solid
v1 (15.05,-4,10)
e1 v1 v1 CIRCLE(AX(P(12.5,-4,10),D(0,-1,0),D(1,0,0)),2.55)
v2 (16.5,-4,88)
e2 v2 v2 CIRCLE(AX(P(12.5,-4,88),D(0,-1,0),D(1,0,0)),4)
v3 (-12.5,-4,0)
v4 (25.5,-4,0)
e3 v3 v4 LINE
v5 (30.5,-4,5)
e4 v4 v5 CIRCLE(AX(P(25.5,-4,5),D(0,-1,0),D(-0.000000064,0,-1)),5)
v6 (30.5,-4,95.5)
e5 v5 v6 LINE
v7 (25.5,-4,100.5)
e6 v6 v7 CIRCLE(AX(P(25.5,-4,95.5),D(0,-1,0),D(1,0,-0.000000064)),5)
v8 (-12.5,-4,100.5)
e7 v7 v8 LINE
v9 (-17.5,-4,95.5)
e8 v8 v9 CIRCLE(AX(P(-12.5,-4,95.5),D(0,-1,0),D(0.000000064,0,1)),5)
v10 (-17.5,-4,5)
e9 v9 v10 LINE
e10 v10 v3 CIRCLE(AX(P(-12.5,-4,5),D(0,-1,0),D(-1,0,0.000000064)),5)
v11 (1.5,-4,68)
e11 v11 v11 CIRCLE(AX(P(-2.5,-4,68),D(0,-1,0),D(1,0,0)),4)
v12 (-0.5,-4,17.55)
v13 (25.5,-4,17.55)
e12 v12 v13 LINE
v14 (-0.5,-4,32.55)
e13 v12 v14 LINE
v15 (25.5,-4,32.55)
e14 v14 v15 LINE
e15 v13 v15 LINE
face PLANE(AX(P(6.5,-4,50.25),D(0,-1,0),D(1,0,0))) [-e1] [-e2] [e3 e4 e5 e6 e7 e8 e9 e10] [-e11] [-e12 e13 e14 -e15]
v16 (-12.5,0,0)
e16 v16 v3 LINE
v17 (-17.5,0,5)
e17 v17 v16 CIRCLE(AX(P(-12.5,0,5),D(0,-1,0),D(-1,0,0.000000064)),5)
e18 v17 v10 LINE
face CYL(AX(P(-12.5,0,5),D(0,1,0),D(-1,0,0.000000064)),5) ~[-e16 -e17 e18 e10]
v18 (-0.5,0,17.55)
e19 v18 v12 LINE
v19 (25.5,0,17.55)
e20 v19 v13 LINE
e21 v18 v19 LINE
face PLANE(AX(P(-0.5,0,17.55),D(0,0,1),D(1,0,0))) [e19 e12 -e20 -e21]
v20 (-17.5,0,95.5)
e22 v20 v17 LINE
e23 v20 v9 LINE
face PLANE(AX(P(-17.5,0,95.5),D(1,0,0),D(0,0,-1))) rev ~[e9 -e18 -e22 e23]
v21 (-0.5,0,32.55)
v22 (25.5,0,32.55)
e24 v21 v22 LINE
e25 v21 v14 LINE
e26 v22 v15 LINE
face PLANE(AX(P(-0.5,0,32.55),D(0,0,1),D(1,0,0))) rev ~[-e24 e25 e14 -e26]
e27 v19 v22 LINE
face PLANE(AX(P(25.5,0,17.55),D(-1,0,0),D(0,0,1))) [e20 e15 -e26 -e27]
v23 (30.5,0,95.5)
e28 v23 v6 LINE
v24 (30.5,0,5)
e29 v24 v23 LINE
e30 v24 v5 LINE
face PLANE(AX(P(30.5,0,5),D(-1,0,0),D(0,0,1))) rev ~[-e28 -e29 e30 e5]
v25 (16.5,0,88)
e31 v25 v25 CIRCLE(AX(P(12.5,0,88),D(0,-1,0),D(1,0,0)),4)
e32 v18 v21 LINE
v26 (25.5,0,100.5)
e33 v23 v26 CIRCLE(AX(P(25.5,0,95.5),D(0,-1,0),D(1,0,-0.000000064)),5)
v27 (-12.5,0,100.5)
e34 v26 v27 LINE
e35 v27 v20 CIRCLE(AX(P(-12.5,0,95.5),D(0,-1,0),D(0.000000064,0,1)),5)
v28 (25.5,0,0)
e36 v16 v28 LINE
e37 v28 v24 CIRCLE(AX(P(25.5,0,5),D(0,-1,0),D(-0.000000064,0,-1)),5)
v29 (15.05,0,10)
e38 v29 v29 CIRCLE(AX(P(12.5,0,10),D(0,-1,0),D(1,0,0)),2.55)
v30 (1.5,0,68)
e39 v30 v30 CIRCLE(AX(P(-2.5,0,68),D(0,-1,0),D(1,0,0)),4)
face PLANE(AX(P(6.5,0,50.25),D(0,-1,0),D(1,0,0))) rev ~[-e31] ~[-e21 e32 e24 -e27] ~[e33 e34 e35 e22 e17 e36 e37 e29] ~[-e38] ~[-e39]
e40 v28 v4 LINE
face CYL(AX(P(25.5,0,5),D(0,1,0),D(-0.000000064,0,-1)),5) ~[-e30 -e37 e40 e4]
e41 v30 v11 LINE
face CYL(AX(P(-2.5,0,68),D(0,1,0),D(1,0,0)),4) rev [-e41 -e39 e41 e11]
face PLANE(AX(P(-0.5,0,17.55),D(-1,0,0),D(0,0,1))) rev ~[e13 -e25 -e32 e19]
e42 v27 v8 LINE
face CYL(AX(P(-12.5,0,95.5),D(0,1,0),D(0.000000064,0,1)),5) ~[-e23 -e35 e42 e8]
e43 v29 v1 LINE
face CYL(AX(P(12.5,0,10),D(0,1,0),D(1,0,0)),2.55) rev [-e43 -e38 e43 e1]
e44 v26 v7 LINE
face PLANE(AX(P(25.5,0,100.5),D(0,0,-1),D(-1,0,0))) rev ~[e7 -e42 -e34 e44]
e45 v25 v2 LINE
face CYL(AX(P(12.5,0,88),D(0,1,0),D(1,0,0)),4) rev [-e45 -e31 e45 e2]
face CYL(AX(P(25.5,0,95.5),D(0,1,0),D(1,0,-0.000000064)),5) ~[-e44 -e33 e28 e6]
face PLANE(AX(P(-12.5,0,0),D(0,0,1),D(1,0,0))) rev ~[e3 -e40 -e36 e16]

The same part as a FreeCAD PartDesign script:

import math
import FreeCAD as App
import Part
import Sketcher

doc = App.newDocument("Part")
body = doc.addObject("PartDesign::Body", "Body")

sketch1 = doc.addObject("Sketcher::SketchObject", "Sketch")
body.addObject(sketch1)
sketch1.AttachmentSupport = (doc.XZ_Plane, [""])
sketch1.MapMode = "FlatFace"
sketch1.addGeometry(Part.LineSegment(App.Vector(-17.5, 95.5, 0), App.Vector(-17.5, 5, 0)), False)
sketch1.addGeometry(Part.ArcOfCircle(Part.Circle(App.Vector(-12.5, 5, 0), App.Vector(0, 0, 1), 5), math.radians(180), math.radians(270)), False)
sketch1.addGeometry(Part.LineSegment(App.Vector(-12.5, 0, 0), App.Vector(25.5, 0, 0)), False)
sketch1.addGeometry(Part.ArcOfCircle(Part.Circle(App.Vector(25.5, 5, 0), App.Vector(0, 0, 1), 5), math.radians(-90), math.radians(0)), False)
sketch1.addGeometry(Part.LineSegment(App.Vector(30.5, 5, 0), App.Vector(30.5, 95.5, 0)), False)
sketch1.addGeometry(Part.ArcOfCircle(Part.Circle(App.Vector(25.5, 95.5, 0), App.Vector(0, 0, 1), 5), math.radians(0), math.radians(90)), False)
sketch1.addGeometry(Part.LineSegment(App.Vector(25.5, 100.5, 0), App.Vector(-12.5, 100.5, 0)), False)
sketch1.addGeometry(Part.ArcOfCircle(Part.Circle(App.Vector(-12.5, 95.5, 0), App.Vector(0, 0, 1), 5), math.radians(90), math.radians(180)), False)
sketch1.addGeometry(Part.Circle(App.Vector(12.5, 10, 0), App.Vector(0, 0, 1), 2.5), False)
sketch1.addGeometry(Part.LineSegment(App.Vector(25.5, 17.6, 0), App.Vector(-0.5, 17.6, 0)), False)
sketch1.addGeometry(Part.LineSegment(App.Vector(-0.5, 17.6, 0), App.Vector(-0.5, 32.5, 0)), False)
sketch1.addGeometry(Part.LineSegment(App.Vector(-0.5, 32.5, 0), App.Vector(25.5, 32.5, 0)), False)
sketch1.addGeometry(Part.LineSegment(App.Vector(25.5, 32.5, 0), App.Vector(25.5, 17.6, 0)), False)
sketch1.addGeometry(Part.Circle(App.Vector(-2.5, 68, 0), App.Vector(0, 0, 1), 4), False)
sketch1.addGeometry(Part.Circle(App.Vector(12.5, 88, 0), App.Vector(0, 0, 1), 4), False)
sketch1.addConstraint(Sketcher.Constraint("Tangent", 0, 2, 1, 1))
sketch1.addConstraint(Sketcher.Constraint("Tangent", 1, 2, 2, 1))
sketch1.addConstraint(Sketcher.Constraint("Tangent", 2, 2, 3, 1))
sketch1.addConstraint(Sketcher.Constraint("Tangent", 3, 2, 4, 1))
sketch1.addConstraint(Sketcher.Constraint("Tangent", 4, 2, 5, 1))
sketch1.addConstraint(Sketcher.Constraint("Tangent", 5, 2, 6, 1))
sketch1.addConstraint(Sketcher.Constraint("Tangent", 6, 2, 7, 1))
sketch1.addConstraint(Sketcher.Constraint("Tangent", 7, 2, 0, 1))
sketch1.addConstraint(Sketcher.Constraint("Coincident", 9, 2, 10, 1))
sketch1.addConstraint(Sketcher.Constraint("Coincident", 10, 2, 11, 1))
sketch1.addConstraint(Sketcher.Constraint("Coincident", 11, 2, 12, 1))
sketch1.addConstraint(Sketcher.Constraint("Coincident", 12, 2, 9, 1))
sketch1.addConstraint(Sketcher.Constraint("Vertical", 0))
sketch1.addConstraint(Sketcher.Constraint("Horizontal", 2))
sketch1.addConstraint(Sketcher.Constraint("Vertical", 4))
sketch1.addConstraint(Sketcher.Constraint("Horizontal", 6))
sketch1.addConstraint(Sketcher.Constraint("Horizontal", 9))
sketch1.addConstraint(Sketcher.Constraint("Vertical", 10))
sketch1.addConstraint(Sketcher.Constraint("Horizontal", 11))
sketch1.addConstraint(Sketcher.Constraint("Vertical", 12))
sketch1.addConstraint(Sketcher.Constraint("Equal", 1, 3))
sketch1.addConstraint(Sketcher.Constraint("Equal", 3, 5))
sketch1.addConstraint(Sketcher.Constraint("Equal", 5, 7))
sketch1.addConstraint(Sketcher.Constraint("Equal", 13, 14))
sketch1.addConstraint(Sketcher.Constraint("PointOnObject", 1, 2, -1))
sketch1.addConstraint(Sketcher.Constraint("Vertical", 8, 3, 14, 3))
sketch1.addConstraint(Sketcher.Constraint("Vertical", 5, 2, 11, 2))
sketch1.addConstraint(Sketcher.Constraint("Diameter", 13, 8.0))
sketch1.addConstraint(Sketcher.Constraint("Radius", 1, 5.0))
sketch1.addConstraint(Sketcher.Constraint("Diameter", 8, 5.1))
sketch1.addConstraint(Sketcher.Constraint("DistanceX", 2, 1, 2, 2, 38.0))
sketch1.addConstraint(Sketcher.Constraint("DistanceX", 9, 2, 9, 1, 26.0))
sketch1.addConstraint(Sketcher.Constraint("DistanceY", 10, 1, 10, 2, 15.0))
sketch1.addConstraint(Sketcher.Constraint("DistanceY", 0, 2, 0, 1, 90.5))
sketch1.addConstraint(Sketcher.Constraint("DistanceY", -1, 1, 8, 3, 10.0))
sketch1.addConstraint(Sketcher.Constraint("DistanceY", -1, 1, 13, 3, 68.0))
sketch1.addConstraint(Sketcher.Constraint("DistanceY", -1, 1, 14, 3, 88.0))
sketch1.addConstraint(Sketcher.Constraint("DistanceX", 8, 3, 3, 3, 13.0))
sketch1.addConstraint(Sketcher.Constraint("DistanceX", 7, 3, 13, 3, 10.0))
sketch1.addConstraint(Sketcher.Constraint("DistanceX", 1, 3, -1, 1, 12.5))
sketch1.addConstraint(Sketcher.Constraint("DistanceY", -1, 1, 9, 2, 17.55))
pad1 = doc.addObject("PartDesign::Pad", "Pad")
body.addObject(pad1)
pad1.Profile = sketch1
pad1.Length = 4

doc.recompute()
